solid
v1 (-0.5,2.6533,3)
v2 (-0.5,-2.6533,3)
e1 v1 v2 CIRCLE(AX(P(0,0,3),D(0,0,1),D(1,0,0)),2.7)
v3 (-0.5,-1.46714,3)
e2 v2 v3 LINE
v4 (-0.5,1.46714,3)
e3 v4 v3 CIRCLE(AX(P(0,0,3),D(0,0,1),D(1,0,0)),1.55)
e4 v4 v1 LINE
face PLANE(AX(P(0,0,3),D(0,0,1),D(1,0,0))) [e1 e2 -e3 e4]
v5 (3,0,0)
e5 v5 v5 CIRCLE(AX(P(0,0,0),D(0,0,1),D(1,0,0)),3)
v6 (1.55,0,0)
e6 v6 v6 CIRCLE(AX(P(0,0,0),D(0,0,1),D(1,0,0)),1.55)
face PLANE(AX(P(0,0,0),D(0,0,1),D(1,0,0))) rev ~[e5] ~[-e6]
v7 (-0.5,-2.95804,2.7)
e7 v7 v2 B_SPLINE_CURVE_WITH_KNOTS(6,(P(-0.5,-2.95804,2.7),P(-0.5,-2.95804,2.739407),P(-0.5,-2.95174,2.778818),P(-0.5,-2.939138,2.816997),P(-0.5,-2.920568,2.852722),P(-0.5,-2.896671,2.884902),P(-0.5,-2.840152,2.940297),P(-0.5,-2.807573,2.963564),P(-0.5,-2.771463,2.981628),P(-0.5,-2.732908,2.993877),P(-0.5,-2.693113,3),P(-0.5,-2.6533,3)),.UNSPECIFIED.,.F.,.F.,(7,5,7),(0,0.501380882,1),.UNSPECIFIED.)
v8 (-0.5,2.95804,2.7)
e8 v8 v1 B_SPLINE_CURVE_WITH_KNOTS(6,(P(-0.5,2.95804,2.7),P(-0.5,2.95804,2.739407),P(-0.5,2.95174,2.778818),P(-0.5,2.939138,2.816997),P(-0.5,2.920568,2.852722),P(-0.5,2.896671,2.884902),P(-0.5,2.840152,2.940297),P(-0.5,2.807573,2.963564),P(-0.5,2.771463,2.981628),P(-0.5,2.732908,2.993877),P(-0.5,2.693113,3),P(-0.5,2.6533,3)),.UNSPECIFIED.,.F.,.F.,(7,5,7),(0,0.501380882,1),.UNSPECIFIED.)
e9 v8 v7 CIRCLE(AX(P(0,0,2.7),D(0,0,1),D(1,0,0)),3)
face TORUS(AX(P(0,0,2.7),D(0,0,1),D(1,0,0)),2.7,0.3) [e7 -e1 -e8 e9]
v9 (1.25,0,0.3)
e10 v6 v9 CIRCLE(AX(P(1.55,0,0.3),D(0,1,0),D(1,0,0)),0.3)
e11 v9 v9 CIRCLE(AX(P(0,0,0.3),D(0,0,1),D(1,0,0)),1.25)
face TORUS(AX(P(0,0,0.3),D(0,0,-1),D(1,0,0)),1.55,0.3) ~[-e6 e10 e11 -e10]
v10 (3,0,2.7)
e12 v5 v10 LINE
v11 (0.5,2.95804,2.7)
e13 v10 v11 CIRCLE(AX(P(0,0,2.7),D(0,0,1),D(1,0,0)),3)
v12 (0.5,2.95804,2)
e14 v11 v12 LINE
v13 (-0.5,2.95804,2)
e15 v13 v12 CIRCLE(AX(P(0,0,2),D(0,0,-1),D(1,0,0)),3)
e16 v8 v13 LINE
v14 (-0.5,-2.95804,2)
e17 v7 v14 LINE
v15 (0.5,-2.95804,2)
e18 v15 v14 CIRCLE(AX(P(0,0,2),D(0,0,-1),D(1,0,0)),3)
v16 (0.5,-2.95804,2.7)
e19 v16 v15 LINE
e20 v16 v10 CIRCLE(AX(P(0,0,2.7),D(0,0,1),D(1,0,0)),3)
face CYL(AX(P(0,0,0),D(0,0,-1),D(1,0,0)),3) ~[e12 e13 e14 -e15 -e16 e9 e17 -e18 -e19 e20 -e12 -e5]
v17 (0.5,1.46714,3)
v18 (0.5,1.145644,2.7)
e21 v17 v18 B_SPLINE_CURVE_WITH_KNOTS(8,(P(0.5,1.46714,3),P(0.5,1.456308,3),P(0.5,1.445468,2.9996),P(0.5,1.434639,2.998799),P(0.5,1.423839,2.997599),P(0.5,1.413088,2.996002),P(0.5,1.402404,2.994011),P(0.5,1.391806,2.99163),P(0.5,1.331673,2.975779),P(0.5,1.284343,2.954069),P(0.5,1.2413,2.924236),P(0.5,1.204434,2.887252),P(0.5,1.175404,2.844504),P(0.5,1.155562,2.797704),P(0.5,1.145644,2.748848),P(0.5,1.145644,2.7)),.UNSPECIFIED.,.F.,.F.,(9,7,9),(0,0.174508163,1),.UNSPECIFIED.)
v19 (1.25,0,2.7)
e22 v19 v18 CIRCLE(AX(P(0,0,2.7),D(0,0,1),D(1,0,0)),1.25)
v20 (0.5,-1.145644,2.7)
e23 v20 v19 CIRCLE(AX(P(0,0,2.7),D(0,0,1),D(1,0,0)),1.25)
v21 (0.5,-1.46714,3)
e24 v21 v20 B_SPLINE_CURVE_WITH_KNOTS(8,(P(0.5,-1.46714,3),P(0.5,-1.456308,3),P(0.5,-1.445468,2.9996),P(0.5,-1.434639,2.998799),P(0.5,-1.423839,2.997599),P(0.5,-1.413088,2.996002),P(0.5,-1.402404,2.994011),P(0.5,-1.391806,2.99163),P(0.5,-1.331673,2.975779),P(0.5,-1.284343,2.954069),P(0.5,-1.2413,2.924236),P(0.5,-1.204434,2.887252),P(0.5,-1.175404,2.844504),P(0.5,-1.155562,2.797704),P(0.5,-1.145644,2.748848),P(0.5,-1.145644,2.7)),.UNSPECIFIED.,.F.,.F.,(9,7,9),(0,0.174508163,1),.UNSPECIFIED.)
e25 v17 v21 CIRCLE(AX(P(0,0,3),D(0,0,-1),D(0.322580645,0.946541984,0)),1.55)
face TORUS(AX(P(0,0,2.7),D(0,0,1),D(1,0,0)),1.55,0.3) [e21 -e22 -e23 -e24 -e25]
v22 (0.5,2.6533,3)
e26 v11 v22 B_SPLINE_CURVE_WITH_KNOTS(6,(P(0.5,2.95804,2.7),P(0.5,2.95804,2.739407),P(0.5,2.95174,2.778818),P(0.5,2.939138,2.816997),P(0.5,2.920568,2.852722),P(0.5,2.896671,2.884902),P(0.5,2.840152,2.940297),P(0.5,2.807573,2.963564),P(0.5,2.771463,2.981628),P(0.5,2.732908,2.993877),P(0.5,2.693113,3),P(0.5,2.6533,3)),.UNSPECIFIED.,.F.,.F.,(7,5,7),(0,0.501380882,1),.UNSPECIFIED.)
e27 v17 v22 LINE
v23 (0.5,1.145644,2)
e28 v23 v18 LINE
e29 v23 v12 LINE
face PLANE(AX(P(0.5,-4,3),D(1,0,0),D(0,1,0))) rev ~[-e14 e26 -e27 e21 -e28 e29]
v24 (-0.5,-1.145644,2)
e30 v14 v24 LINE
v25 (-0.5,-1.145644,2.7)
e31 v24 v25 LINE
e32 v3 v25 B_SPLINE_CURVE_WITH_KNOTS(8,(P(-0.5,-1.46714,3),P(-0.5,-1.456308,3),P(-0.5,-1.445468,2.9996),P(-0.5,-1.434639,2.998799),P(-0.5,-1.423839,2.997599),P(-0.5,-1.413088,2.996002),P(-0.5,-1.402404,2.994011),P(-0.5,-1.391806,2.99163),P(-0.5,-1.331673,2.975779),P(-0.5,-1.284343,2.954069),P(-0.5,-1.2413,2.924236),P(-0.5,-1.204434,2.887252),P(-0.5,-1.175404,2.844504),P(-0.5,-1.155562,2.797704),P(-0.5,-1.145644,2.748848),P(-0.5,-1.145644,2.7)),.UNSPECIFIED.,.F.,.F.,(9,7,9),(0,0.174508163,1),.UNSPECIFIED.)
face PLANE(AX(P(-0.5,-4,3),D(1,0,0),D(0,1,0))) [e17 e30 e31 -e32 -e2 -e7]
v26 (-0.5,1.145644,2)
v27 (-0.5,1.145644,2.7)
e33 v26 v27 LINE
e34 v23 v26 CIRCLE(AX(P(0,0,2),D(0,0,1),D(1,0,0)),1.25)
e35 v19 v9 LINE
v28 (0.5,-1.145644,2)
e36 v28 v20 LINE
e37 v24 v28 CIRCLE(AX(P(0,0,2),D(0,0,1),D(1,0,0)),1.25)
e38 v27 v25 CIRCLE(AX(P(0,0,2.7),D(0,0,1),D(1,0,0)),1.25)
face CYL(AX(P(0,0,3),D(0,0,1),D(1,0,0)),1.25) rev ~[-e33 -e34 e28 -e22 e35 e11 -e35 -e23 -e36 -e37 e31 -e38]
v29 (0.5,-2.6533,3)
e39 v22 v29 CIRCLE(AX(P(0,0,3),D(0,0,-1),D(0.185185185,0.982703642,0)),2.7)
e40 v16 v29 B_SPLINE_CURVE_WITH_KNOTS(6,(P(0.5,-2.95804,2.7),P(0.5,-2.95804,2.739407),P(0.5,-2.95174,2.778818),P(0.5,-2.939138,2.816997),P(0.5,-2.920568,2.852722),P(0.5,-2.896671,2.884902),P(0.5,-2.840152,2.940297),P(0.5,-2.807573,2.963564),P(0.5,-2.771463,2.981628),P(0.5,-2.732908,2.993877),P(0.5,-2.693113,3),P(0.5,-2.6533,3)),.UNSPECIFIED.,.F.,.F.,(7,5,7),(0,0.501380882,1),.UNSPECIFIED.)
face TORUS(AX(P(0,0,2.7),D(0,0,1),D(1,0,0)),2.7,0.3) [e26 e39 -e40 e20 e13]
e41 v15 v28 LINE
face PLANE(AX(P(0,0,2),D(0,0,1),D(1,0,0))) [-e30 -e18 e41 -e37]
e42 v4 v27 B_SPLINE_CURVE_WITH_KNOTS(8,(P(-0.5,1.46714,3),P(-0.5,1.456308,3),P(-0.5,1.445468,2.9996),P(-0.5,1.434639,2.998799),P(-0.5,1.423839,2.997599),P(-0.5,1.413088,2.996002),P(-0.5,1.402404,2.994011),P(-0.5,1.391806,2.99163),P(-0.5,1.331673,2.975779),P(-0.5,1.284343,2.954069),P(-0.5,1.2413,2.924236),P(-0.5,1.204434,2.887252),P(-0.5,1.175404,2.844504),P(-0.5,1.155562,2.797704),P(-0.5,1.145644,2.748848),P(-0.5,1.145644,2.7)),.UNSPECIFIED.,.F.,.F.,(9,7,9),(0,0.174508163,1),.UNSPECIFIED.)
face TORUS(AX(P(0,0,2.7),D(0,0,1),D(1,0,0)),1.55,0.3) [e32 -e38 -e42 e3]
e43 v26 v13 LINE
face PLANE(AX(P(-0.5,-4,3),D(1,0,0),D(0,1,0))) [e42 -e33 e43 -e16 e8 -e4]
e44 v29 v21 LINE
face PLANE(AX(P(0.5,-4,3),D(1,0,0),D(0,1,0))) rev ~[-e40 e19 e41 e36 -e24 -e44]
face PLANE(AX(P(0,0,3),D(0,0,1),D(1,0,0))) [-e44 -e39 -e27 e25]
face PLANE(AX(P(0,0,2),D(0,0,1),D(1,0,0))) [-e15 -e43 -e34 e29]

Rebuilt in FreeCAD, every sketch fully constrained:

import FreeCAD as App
import Part
import Sketcher
from FreeCAD import Vector
Q = App.Units.Quantity


def edges_at(feature, points):
    """Names of the edges that pass closest to the given points."""
    edges = feature.Shape.Edges
    near = lambda p: min(range(len(edges)), key=lambda i: edges[i].distToShape(Part.Vertex(*p))[0])
    return sorted({f"Edge{near(p) + 1}" for p in points})

doc = App.newDocument("Part")
params = doc.addObject("Spreadsheet::Sheet", "Params")
for row, (alias, value) in enumerate([
    ("sketch1_diameter", "6 mm"),
    ("pad1_length", "3 mm"),
    ("sketch2_diameter", "2.5 mm"),
    ("fillet_radius", "0.3 mm"),
    ("sketch3_width", "1 mm"),
    ("sketch3_height", "8 mm"),
    ("pocket2_length", "1 mm"),
], start=1):
    params.set(f"A{row}", alias)
    params.set(f"B{row}", "=" + value)
    params.setAlias(f"B{row}", alias)

body = doc.addObject("PartDesign::Body", "Body")

# Sketch on XY plane
sketch1 = doc.addObject("Sketcher::SketchObject", "Sketch")
body.addObject(sketch1)
sketch1.AttachmentSupport = (doc.XY_Plane, [""])
sketch1.MapMode = "FlatFace"
sketch1.addGeometry(Part.Circle(Vector(0, 0, 0), Vector(0, 0, 1), 3), False)
sketch1.addConstraint([
    Sketcher.Constraint("Coincident", 0, 3, -1, 1),
    Sketcher.Constraint("Diameter", 0, Q("6 mm")),
])
sketch1.setExpression("Constraints[1]", "Params.sketch1_diameter")
pad1 = doc.addObject("PartDesign::Pad", "Pad")
body.addObject(pad1)
pad1.Profile = sketch1
pad1.setExpression("Length", "Params.pad1_length")

# Sketch on XY plane
sketch2 = doc.addObject("Sketcher::SketchObject", "Sketch001")
body.addObject(sketch2)
sketch2.AttachmentSupport = (doc.XY_Plane, [""])
sketch2.MapMode = "FlatFace"
sketch2.AttachmentOffset = App.Placement(Vector(0, 0, 3), App.Rotation())
sketch2.addGeometry(Part.Circle(Vector(0, 0, 0), Vector(0, 0, 1), 1.2), False)
sketch2.addConstraint([
    Sketcher.Constraint("Coincident", 0, 3, -1, 1),
    Sketcher.Constraint("Diameter", 0, Q("2.5 mm")),
])
sketch2.setExpression("Constraints[1]", "Params.sketch2_diameter")
pocket1 = doc.addObject("PartDesign::Pocket", "Pocket")
body.addObject(pocket1)
pocket1.Profile = sketch2
pocket1.Type = "ThroughAll"
doc.recompute()

fillet = doc.addObject("PartDesign::Fillet", "Fillet")
body.addObject(fillet)
fillet.Base = (pocket1, edges_at(pocket1, [(-3, 0, 3), (-1.25, 0, 0), (-1.25, 0, 3)]))
fillet.setExpression("Radius", "Params.fillet_radius")

# Sketch on XY plane
sketch3 = doc.addObject("Sketcher::SketchObject", "Sketch002")
body.addObject(sketch3)
sketch3.AttachmentSupport = (doc.XY_Plane, [""])
sketch3.MapMode = "FlatFace"
sketch3.AttachmentOffset = App.Placement(Vector(0, 0, 3), App.Rotation())
sketch3.addGeometry([
    Part.LineSegment(Vector(-0.5, 4, 0), Vector(-0.5, -4, 0)),
    Part.LineSegment(Vector(-0.5, -4, 0), Vector(0.5, -4, 0)),
    Part.LineSegment(Vector(0.5, -4, 0), Vector(0.5, 4, 0)),
    Part.LineSegment(Vector(0.5, 4, 0), Vector(-0.5, 4, 0)),
], False)
sketch3.addConstraint([
    Sketcher.Constraint("Coincident", 0, 2, 1, 1),
    Sketcher.Constraint("Coincident", 1, 2, 2, 1),
    Sketcher.Constraint("Coincident", 2, 2, 3, 1),
    Sketcher.Constraint("Coincident", 3, 2, 0, 1),
    Sketcher.Constraint("Vertical", 0),
    Sketcher.Constraint("Horizontal", 1),
    Sketcher.Constraint("Vertical", 2),
    Sketcher.Constraint("Horizontal", 3),
    Sketcher.Constraint("Symmetric", 0, 2, 2, 2, -1, 1),
    Sketcher.Constraint("DistanceX", 1, 1, 1, 2, Q("1 mm")),
    Sketcher.Constraint("DistanceY", 0, 2, 0, 1, Q("8 mm")),
])
sketch3.setExpression("Constraints[9]", "Params.sketch3_width")
sketch3.setExpression("Constraints[10]", "Params.sketch3_height")
pocket2 = doc.addObject("PartDesign::Pocket", "Pocket001")
body.addObject(pocket2)
pocket2.Profile = sketch3
pocket2.setExpression("Length", "Params.pocket2_length")

doc.recompute()
